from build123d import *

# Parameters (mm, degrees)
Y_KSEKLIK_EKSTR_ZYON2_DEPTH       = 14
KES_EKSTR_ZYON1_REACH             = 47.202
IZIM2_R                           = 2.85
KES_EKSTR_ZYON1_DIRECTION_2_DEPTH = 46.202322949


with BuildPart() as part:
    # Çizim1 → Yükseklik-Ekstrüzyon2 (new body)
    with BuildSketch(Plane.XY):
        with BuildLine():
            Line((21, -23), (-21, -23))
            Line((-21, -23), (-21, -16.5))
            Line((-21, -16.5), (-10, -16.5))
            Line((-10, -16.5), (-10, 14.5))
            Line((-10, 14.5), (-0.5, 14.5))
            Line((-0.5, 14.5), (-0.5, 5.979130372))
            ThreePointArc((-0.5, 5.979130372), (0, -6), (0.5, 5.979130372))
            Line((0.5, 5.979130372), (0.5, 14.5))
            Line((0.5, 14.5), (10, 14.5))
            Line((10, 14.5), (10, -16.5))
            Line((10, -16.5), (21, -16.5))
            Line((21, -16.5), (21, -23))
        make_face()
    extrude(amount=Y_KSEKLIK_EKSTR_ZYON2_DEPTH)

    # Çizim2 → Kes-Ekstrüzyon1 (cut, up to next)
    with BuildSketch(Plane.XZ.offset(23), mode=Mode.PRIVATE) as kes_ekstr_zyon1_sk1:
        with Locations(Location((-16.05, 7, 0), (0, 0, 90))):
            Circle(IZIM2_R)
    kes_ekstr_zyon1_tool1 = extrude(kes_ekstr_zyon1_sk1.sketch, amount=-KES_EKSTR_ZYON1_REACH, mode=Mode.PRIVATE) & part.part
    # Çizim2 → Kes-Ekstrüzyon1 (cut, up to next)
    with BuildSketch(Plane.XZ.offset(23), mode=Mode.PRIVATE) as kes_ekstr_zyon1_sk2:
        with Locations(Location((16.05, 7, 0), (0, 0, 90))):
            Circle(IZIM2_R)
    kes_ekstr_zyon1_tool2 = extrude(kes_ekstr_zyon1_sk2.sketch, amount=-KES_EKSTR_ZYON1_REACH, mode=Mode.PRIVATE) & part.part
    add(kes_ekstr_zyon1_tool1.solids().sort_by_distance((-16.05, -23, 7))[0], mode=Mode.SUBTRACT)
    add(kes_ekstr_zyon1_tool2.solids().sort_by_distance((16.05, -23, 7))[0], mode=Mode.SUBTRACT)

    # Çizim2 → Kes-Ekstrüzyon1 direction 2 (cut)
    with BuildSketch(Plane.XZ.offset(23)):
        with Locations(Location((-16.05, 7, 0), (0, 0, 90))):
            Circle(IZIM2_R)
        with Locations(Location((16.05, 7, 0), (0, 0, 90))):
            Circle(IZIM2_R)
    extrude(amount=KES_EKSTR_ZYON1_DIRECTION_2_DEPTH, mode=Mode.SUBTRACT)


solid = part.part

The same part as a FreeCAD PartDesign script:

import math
import FreeCAD as App
import Part
import Sketcher
from FreeCAD import Vector

doc = App.newDocument("Part")
body = doc.addObject("PartDesign::Body", "Body")

sketch1 = body.newObject("Sketcher::SketchObject", "Sketch")
sketch1.AttachmentSupport = (doc.getObject("XY_Plane"), [""])
sketch1.MapMode = "FlatFace"
sketch1.addGeometry([
    Part.LineSegment(Vector(-21, -23, 0), Vector(21, -23, 0)),
    Part.LineSegment(Vector(21, -23, 0), Vector(21, -16.5, 0)),
    Part.LineSegment(Vector(21, -16.5, 0), Vector(10, -16.5, 0)),
    Part.LineSegment(Vector(10, -16.5, 0), Vector(10, 14.5, 0)),
    Part.LineSegment(Vector(10, 14.5, 0), Vector(0.5, 14.5, 0)),
    Part.LineSegment(Vector(0.5, 14.5, 0), Vector(0.5, 6, 0)),
    Part.ArcOfCircle(Part.Circle(Vector(0, 0, 0), Vector(0, 0, 1), 6), math.radians(95), math.radians(445)),
    Part.LineSegment(Vector(-0.5, 6, 0), Vector(-0.5, 14.5, 0)),
    Part.LineSegment(Vector(-0.5, 14.5, 0), Vector(-10, 14.5, 0)),
    Part.LineSegment(Vector(-10, 14.5, 0), Vector(-10, -16.5, 0)),
    Part.LineSegment(Vector(-10, -16.5, 0), Vector(-21, -16.5, 0)),
    Part.LineSegment(Vector(-21, -16.5, 0), Vector(-21, -23, 0)),
], False)
sketch1.addConstraint([
    Sketcher.Constraint("Coincident", 0, 2, 1, 1),
    Sketcher.Constraint("Coincident", 1, 2, 2, 1),
    Sketcher.Constraint("Coincident", 2, 2, 3, 1),
    Sketcher.Constraint("Coincident", 3, 2, 4, 1),
    Sketcher.Constraint("Coincident", 4, 2, 5, 1),
    Sketcher.Constraint("Coincident", 5, 2, 6, 2),
    Sketcher.Constraint("Coincident", 6, 1, 7, 1),
    Sketcher.Constraint("Coincident", 7, 2, 8, 1),
    Sketcher.Constraint("Coincident", 8, 2, 9, 1),
    Sketcher.Constraint("Coincident", 9, 2, 10, 1),
    Sketcher.Constraint("Coincident", 10, 2, 11, 1),
    Sketcher.Constraint("Coincident", 11, 2, 0, 1),
    Sketcher.Constraint("Horizontal", 0),
    Sketcher.Constraint("Vertical", 1),
    Sketcher.Constraint("Horizontal", 2),
    Sketcher.Constraint("Vertical", 3),
    Sketcher.Constraint("Horizontal", 4),
    Sketcher.Constraint("Vertical", 5),
    Sketcher.Constraint("Vertical", 7),
    Sketcher.Constraint("Horizontal", 8),
    Sketcher.Constraint("Vertical", 9),
    Sketcher.Constraint("Horizontal", 10),
    Sketcher.Constraint("Vertical", 11),
    Sketcher.Constraint("Coincident", 6, 3, -1, 1),
    Sketcher.Constraint("Symmetric", 4, 2, 7, 2, -2),
    Sketcher.Constraint("Symmetric", 2, 2, 9, 2, -2),
    Sketcher.Constraint("Equal", 2, 10),
    Sketcher.Constraint("Radius", 6, 6.0),
    Sketcher.Constraint("DistanceX", 0, 1, 0, 2, 42.0),
    Sketcher.Constraint("DistanceX", 2, 2, 2, 1, 11.0),
    Sketcher.Constraint("DistanceY", 3, 1, 3, 2, 31.0),
    Sketcher.Constraint("DistanceX", 4, 2, 4, 1, 9.5),
    Sketcher.Constraint("DistanceY", 1, 1, 1, 2, 6.5),
    Sketcher.Constraint("DistanceY", 0, 2, -1, 1, 23.0),
])
pad1 = body.newObject("PartDesign::Pad", "Pad")
pad1.Profile = sketch1
pad1.Length = 14

sketch2 = body.newObject("Sketcher::SketchObject", "Sketch001")
sketch2.AttachmentSupport = (doc.getObject("XZ_Plane"), [""])
sketch2.MapMode = "FlatFace"
sketch2.AttachmentOffset = App.Placement(Vector(0, 0, 23), App.Rotation())
sketch2.addGeometry(Part.Circle(Vector(-16.1, 7, 0), Vector(0, 0, 1), 2.9), False)
sketch2.addConstraint([
    Sketcher.Constraint("Diameter", 0, 5.7),
    Sketcher.Constraint("DistanceY", -1, 1, 0, 3, 7.0),
    Sketcher.Constraint("DistanceX", 0, 3, -1, 1, 16.05),
])
pocket1 = body.newObject("PartDesign::Pocket", "Pocket")
pocket1.Profile = sketch2
pocket1.Type = "UpToFirst"

sketch3 = body.newObject("Sketcher::SketchObject", "Sketch002")
sketch3.AttachmentSupport = (doc.getObject("XZ_Plane"), [""])
sketch3.MapMode = "FlatFace"
sketch3.AttachmentOffset = App.Placement(Vector(0, 0, 23), App.Rotation())
sketch3.addGeometry(Part.Circle(Vector(16.1, 7, 0), Vector(0, 0, 1), 2.9), False)
sketch3.addConstraint([
    Sketcher.Constraint("Diameter", 0, 5.7),
    Sketcher.Constraint("DistanceY", -1, 1, 0, 3, 7.0),
    Sketcher.Constraint("DistanceX", -1, 1, 0, 3, 16.05),
])
pocket2 = body.newObject("PartDesign::Pocket", "Pocket001")
pocket2.Profile = sketch3
pocket2.Type = "UpToFirst"

sketch4 = body.newObject("Sketcher::SketchObject", "Sketch003")
sketch4.AttachmentSupport = (doc.getObject("XZ_Plane"), [""])
sketch4.MapMode = "FlatFace"
sketch4.AttachmentOffset = App.Placement(Vector(0, 0, 23), App.Rotation())
sketch4.addGeometry([
    Part.Circle(Vector(-16.1, 7, 0), Vector(0, 0, 1), 2.9),
    Part.Circle(Vector(16.1, 7, 0), Vector(0, 0, 1), 2.9),
], False)
sketch4.addConstraint([
    Sketcher.Constraint("Equal", 0, 1),
    Sketcher.Constraint("Symmetric", 0, 3, 1, 3, -2),
    Sketcher.Constraint("Diameter", 0, 5.7),
    Sketcher.Constraint("DistanceY", -1, 1, 0, 3, 7.0),
    Sketcher.Constraint("DistanceX", 0, 3, 1, 3, 32.1),
])
pocket3 = body.newObject("PartDesign::Pocket", "Pocket002")
pocket3.Profile = sketch4
pocket3.Length = 46.202323
pocket3.Reversed = True

doc.recompute()
